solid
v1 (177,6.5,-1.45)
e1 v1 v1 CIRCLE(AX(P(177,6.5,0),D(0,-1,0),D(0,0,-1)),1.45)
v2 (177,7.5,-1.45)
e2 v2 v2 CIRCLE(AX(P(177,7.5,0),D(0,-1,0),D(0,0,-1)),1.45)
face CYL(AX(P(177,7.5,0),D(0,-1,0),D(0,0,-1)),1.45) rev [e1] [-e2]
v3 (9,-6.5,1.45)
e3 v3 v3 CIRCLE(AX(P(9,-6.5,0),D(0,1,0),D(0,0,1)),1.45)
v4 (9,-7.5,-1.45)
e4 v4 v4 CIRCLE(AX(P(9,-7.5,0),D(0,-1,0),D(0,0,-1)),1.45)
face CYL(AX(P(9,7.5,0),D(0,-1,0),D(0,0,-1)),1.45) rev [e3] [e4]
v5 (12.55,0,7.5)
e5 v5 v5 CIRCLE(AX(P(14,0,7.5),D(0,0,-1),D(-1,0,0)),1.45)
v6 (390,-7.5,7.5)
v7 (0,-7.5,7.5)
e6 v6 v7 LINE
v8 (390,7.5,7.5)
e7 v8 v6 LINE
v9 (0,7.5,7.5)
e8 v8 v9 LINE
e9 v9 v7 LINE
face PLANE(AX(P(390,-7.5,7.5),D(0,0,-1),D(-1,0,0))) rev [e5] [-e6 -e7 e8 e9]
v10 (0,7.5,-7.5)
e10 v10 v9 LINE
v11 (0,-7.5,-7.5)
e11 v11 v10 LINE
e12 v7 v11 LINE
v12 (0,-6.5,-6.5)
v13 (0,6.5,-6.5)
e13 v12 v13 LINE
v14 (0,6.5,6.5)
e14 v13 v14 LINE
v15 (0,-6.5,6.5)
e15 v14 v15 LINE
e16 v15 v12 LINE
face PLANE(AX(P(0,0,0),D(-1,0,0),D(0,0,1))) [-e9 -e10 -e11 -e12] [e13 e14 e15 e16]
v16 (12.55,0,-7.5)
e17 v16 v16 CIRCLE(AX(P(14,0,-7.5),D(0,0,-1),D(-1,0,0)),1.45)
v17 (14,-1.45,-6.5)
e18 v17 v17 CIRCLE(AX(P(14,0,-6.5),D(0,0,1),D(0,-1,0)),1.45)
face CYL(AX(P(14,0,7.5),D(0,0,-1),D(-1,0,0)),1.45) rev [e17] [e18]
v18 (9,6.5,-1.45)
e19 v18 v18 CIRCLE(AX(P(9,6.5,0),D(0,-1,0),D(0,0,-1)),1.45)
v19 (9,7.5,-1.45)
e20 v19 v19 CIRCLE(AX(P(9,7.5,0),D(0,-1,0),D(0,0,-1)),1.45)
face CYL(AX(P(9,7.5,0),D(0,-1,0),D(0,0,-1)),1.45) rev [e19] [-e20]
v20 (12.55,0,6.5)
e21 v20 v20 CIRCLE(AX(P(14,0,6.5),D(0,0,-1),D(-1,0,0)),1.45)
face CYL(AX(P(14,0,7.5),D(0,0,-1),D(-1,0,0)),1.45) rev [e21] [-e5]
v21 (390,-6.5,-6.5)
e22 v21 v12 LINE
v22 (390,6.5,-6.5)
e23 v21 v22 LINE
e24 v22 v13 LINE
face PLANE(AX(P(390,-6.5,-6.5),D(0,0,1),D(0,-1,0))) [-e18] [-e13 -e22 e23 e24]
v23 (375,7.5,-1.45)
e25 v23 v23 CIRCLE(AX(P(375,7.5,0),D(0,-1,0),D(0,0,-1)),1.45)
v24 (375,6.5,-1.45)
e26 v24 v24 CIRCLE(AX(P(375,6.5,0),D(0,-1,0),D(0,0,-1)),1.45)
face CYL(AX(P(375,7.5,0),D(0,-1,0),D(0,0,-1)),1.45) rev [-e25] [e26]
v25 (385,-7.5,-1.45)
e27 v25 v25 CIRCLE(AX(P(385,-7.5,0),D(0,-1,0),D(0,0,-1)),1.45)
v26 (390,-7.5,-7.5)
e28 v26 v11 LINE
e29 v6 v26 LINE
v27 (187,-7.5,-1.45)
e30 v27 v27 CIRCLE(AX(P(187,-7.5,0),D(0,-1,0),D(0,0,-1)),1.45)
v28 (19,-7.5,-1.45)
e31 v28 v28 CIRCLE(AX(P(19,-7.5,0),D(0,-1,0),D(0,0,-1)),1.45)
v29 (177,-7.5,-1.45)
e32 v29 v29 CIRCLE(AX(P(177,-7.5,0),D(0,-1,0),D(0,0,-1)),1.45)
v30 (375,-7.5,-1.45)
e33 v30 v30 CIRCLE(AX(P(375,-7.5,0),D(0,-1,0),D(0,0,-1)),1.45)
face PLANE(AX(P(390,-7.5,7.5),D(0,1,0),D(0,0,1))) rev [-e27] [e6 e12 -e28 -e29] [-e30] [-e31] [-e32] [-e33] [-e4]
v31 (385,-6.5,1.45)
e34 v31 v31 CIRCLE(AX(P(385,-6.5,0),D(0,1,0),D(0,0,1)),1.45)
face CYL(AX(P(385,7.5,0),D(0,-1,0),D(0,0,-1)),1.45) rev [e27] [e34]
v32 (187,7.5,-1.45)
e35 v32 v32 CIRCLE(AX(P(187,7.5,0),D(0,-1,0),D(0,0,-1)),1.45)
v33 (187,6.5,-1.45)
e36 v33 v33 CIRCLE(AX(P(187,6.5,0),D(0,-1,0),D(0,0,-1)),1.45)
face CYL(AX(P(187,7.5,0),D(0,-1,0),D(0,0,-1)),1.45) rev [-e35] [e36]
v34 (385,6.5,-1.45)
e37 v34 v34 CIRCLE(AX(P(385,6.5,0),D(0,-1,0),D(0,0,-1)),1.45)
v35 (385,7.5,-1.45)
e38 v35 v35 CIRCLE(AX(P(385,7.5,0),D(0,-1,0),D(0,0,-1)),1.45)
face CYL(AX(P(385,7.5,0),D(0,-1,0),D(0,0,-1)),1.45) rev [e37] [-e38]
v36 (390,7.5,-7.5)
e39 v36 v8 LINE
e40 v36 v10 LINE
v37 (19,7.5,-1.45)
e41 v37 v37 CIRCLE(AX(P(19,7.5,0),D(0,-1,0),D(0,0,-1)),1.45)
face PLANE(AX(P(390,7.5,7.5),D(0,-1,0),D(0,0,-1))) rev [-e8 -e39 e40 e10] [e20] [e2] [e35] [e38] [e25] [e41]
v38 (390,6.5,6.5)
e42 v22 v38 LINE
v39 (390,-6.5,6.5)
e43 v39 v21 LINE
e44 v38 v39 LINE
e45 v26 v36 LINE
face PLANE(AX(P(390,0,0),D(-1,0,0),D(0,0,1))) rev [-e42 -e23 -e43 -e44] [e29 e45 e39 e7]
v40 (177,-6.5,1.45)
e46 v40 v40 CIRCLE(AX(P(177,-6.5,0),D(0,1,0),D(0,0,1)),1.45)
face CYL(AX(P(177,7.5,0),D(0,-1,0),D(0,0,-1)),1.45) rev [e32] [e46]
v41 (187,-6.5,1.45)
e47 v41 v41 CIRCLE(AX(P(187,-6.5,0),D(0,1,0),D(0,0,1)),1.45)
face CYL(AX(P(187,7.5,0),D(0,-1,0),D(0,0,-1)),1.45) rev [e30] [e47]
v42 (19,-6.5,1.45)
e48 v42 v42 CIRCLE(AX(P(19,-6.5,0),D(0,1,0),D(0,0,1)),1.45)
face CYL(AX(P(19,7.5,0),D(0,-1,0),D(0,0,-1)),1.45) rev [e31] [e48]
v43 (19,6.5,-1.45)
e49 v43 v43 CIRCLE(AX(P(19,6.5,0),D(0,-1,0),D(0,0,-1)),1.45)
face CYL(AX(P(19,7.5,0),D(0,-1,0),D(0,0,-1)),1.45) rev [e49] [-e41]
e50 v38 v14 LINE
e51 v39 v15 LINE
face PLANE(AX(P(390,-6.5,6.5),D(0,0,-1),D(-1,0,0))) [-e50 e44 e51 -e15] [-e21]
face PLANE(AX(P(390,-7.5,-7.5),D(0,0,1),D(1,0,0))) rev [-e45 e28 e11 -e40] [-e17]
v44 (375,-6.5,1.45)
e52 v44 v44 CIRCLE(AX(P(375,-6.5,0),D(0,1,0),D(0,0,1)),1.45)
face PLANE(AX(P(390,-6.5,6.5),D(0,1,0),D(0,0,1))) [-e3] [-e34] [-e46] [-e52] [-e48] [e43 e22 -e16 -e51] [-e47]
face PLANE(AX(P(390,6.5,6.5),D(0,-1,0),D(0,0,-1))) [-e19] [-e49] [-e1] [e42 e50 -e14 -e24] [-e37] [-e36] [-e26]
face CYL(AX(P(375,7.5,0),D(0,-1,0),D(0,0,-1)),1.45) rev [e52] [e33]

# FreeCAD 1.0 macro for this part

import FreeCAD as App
import Part
import Sketcher
Q = App.Units.Quantity


def add_polygon(sketch, points):
    """Adds a closed chain of lines whose ends are joined by coincident constraints."""
    first, n = sketch.GeometryCount, len(points)
    for a, b in zip(points, points[1:] + points[:1]):
        sketch.addGeometry(Part.LineSegment(App.Vector(*a, 0), App.Vector(*b, 0)), False)
    for i in range(n):
        sketch.addConstraint(Sketcher.Constraint("Coincident", first + i, 2, first + (i + 1) % n, 1))

doc = App.newDocument("Part")
body = doc.addObject("PartDesign::Body", "Body")

# Sketch on YZ plane
sketch1 = body.newObject("Sketcher::SketchObject", "Sketch")
sketch1.AttachmentSupport = (doc.getObject("YZ_Plane"), [""])
sketch1.MapMode = "FlatFace"
add_polygon(sketch1, [(8, 8), (-8, 8), (-8, -8), (8, -8)])  # lines 0-3
add_polygon(sketch1, [(-6, -6), (-6, 6), (6, 6), (6, -6)])  # lines 4-7
sketch1.addConstraint([
    Sketcher.Constraint("Horizontal", 0),
    Sketcher.Constraint("Vertical", 1),
    Sketcher.Constraint("Horizontal", 2),
    Sketcher.Constraint("Vertical", 3),
    Sketcher.Constraint("Vertical", 4),
    Sketcher.Constraint("Horizontal", 5),
    Sketcher.Constraint("Vertical", 6),
    Sketcher.Constraint("Horizontal", 7),
    Sketcher.Constraint("Symmetric", 0, 2, 2, 2, -1, 1),
    Sketcher.Constraint("Symmetric", 4, 2, 6, 2, -1, 1),
    Sketcher.Constraint("Equal", 2, 1),
    Sketcher.Constraint("Equal", 7, 4),
    Sketcher.Constraint("DistanceX", 0, 2, 0, 1, Q("15 mm")),
    Sketcher.Constraint("DistanceX", 5, 1, 5, 2, Q("13 mm")),
])
pad1 = body.newObject("PartDesign::Pad", "Pad")
pad1.Profile = sketch1
pad1.Length = 390

# Sketch on XZ plane
sketch2 = body.newObject("Sketcher::SketchObject", "Sketch001")
sketch2.AttachmentSupport = (doc.getObject("XZ_Plane"), [""])
sketch2.MapMode = "FlatFace"
sketch2.AttachmentOffset = App.Placement(App.Vector(0, 0, 7.5), App.Rotation())
sketch2.addGeometry([
    Part.Circle(App.Vector(375, 0, 0), App.Vector(0, 0, 1), 1.4),  # 0
    Part.Circle(App.Vector(385, 0, 0), App.Vector(0, 0, 1), 1.4),  # 1
    Part.Circle(App.Vector(9, 0, 0), App.Vector(0, 0, 1), 1.4),  # 2
    Part.Circle(App.Vector(19, 0, 0), App.Vector(0, 0, 1), 1.4),  # 3
    Part.Circle(App.Vector(177, 0, 0), App.Vector(0, 0, 1), 1.4),  # 4
    Part.Circle(App.Vector(187, 0, 0), App.Vector(0, 0, 1), 1.4),  # 5
], False)
sketch2.addConstraint([
    Sketcher.Constraint("Equal", 0, 1),
    Sketcher.Constraint("Equal", 1, 2),
    Sketcher.Constraint("Equal", 2, 3),
    Sketcher.Constraint("Equal", 3, 4),
    Sketcher.Constraint("Equal", 4, 5),
    Sketcher.Constraint("PointOnObject", 0, 3, -1),
    Sketcher.Constraint("PointOnObject", 1, 3, -1),
    Sketcher.Constraint("PointOnObject", 2, 3, -1),
    Sketcher.Constraint("PointOnObject", 3, 3, -1),
    Sketcher.Constraint("PointOnObject", 4, 3, -1),
    Sketcher.Constraint("PointOnObject", 5, 3, -1),
    Sketcher.Constraint("Diameter", 0, Q("2.9 mm")),
    Sketcher.Constraint("DistanceX", -1, 1, 0, 3, Q("375 mm")),
    Sketcher.Constraint("DistanceX", -1, 1, 1, 3, Q("385 mm")),
    Sketcher.Constraint("DistanceX", -1, 1, 2, 3, Q("9 mm")),
    Sketcher.Constraint("DistanceX", -1, 1, 3, 3, Q("19 mm")),
    Sketcher.Constraint("DistanceX", -1, 1, 4, 3, Q("177 mm")),
    Sketcher.Constraint("DistanceX", -1, 1, 5, 3, Q("187 mm")),
])
pocket1 = body.newObject("PartDesign::Pocket", "Pocket")
pocket1.Profile = sketch2
pocket1.Type = "ThroughAll"

# Sketch on XY plane
sketch3 = body.newObject("Sketcher::SketchObject", "Sketch002")
sketch3.AttachmentSupport = (doc.getObject("XY_Plane"), [""])
sketch3.MapMode = "FlatFace"
sketch3.AttachmentOffset = App.Placement(App.Vector(0, 0, -7.5), App.Rotation())
sketch3.addGeometry(Part.Circle(App.Vector(14, 0, 0), App.Vector(0, 0, 1), 1.4), False)
sketch3.addConstraint([
    Sketcher.Constraint("PointOnObject", 0, 3, -1),
    Sketcher.Constraint("Diameter", 0, Q("2.9 mm")),
    Sketcher.Constraint("DistanceX", -1, 1, 0, 3, Q("14 mm")),
])
pocket2 = body.newObject("PartDesign::Pocket", "Pocket001")
pocket2.Profile = sketch3
pocket2.Type = "ThroughAll"
pocket2.Reversed = True

doc.recompute()
